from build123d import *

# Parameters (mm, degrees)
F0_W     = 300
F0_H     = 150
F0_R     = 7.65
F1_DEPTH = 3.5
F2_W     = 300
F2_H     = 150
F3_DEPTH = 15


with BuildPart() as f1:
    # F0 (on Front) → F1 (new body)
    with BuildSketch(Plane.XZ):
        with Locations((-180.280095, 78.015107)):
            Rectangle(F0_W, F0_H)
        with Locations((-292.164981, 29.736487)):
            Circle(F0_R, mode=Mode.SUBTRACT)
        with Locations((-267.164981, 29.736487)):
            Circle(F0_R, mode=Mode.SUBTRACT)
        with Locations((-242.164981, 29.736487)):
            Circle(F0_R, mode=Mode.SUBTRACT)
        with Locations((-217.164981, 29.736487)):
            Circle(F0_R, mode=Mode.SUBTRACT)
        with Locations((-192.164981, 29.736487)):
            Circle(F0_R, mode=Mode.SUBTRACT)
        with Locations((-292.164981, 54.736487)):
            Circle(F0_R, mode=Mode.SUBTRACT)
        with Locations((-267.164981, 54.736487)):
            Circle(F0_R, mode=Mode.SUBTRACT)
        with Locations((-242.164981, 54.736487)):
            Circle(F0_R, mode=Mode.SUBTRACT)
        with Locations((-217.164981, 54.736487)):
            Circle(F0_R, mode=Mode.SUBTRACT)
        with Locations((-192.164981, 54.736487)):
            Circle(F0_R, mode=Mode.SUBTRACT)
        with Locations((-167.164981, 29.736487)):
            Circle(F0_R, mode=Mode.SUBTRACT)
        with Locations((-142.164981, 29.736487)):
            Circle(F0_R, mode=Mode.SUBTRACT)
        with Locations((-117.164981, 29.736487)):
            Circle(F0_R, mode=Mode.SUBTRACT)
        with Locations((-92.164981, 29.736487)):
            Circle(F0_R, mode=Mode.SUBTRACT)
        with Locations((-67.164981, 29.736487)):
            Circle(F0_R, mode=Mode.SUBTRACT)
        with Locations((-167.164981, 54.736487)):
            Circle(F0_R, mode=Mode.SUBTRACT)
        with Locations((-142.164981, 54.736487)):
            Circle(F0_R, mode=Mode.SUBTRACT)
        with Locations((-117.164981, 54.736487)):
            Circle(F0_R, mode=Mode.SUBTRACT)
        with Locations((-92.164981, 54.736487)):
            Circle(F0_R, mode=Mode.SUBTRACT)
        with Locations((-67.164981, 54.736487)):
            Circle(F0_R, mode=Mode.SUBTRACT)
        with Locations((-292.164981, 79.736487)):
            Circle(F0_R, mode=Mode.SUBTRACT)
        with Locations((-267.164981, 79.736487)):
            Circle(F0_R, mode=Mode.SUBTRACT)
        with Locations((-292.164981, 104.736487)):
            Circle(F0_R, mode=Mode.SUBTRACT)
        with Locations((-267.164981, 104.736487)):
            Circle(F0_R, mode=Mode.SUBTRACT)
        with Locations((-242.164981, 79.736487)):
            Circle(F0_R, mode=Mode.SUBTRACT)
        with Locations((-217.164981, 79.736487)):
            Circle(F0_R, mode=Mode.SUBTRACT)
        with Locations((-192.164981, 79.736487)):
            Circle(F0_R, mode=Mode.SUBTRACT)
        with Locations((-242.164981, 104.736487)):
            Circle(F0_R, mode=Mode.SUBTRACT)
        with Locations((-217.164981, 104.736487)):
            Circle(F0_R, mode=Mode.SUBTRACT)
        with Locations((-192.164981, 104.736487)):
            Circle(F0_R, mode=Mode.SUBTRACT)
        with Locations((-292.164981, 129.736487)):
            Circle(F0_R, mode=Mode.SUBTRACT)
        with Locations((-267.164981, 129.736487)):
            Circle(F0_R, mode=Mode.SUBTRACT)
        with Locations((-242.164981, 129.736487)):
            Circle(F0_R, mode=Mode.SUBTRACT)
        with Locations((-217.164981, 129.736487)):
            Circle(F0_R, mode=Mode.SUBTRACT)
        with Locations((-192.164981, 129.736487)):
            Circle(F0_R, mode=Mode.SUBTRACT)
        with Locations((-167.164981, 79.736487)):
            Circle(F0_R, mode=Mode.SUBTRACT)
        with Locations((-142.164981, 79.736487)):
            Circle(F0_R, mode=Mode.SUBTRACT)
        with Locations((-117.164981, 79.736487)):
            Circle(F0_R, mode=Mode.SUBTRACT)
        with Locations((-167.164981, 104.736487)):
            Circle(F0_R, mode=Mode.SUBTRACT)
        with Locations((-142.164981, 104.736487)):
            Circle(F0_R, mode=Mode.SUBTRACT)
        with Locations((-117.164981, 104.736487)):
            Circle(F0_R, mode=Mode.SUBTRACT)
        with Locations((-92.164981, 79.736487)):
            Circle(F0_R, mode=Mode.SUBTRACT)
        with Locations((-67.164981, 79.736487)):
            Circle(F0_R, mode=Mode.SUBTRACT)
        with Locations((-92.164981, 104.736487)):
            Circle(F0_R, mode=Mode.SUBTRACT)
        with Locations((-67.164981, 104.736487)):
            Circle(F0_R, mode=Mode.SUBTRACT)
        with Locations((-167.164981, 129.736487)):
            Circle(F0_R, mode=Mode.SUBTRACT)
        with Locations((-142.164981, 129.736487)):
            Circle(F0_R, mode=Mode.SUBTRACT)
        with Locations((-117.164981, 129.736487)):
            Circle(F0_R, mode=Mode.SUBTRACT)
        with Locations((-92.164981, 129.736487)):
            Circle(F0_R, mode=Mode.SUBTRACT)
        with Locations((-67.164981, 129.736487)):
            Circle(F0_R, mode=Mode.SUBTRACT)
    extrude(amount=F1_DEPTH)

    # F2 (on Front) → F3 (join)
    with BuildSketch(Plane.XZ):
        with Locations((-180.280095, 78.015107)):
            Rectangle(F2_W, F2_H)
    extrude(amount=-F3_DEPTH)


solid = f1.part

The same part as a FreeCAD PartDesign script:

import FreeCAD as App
import Part
import Sketcher
from FreeCAD import Vector
Q = App.Units.Quantity


def add_polygon(sketch, points):
    """Adds a closed chain of lines whose ends are joined by coincident constraints."""
    first, n = sketch.GeometryCount, len(points)
    for a, b in zip(points, points[1:] + points[:1]):
        sketch.addGeometry(Part.LineSegment(App.Vector(*a, 0), App.Vector(*b, 0)), False)
    for i in range(n):
        sketch.addConstraint(Sketcher.Constraint("Coincident", first + i, 2, first + (i + 1) % n, 1))

doc = App.newDocument("Part")
body = doc.addObject("PartDesign::Body", "Body")

# Sketch on XZ plane
sketch1 = body.newObject("Sketcher::SketchObject", "Sketch")
sketch1.AttachmentSupport = (doc.getObject("XZ_Plane"), [""])
sketch1.MapMode = "FlatFace"
add_polygon(sketch1, [(-330, 153), (-330, 3), (-30, 3), (-30, 153)])  # lines 0-3
sketch1.addGeometry(Part.Circle(Vector(-292, 30, 0), Vector(0, 0, 1), 8), False)  # 4
sketch1.addGeometry(Part.Circle(Vector(-267, 30, 0), Vector(0, 0, 1), 8), False)  # 5
sketch1.addGeometry(Part.Circle(Vector(-242, 30, 0), Vector(0, 0, 1), 8), False)  # 6
sketch1.addGeometry(Part.Circle(Vector(-217, 30, 0), Vector(0, 0, 1), 8), False)  # 7
sketch1.addGeometry(Part.Circle(Vector(-192, 30, 0), Vector(0, 0, 1), 8), False)  # 8
sketch1.addGeometry(Part.Circle(Vector(-292, 55, 0), Vector(0, 0, 1), 8), False)  # 9
sketch1.addGeometry(Part.Circle(Vector(-267, 55, 0), Vector(0, 0, 1), 8), False)  # 10
sketch1.addGeometry(Part.Circle(Vector(-242, 55, 0), Vector(0, 0, 1), 8), False)  # 11
sketch1.addGeometry(Part.Circle(Vector(-292, 80, 0), Vector(0, 0, 1), 8), False)  # 12
sketch1.addGeometry(Part.Circle(Vector(-267, 80, 0), Vector(0, 0, 1), 8), False)  # 13
sketch1.addGeometry(Part.Circle(Vector(-242, 80, 0), Vector(0, 0, 1), 8), False)  # 14
sketch1.addGeometry(Part.Circle(Vector(-217, 55, 0), Vector(0, 0, 1), 8), False)  # 15
sketch1.addGeometry(Part.Circle(Vector(-192, 55, 0), Vector(0, 0, 1), 8), False)  # 16
sketch1.addGeometry(Part.Circle(Vector(-217, 80, 0), Vector(0, 0, 1), 8), False)  # 17
sketch1.addGeometry(Part.Circle(Vector(-192, 80, 0), Vector(0, 0, 1), 8), False)  # 18
sketch1.addGeometry(Part.Circle(Vector(-167, 30, 0), Vector(0, 0, 1), 8), False)  # 19
sketch1.addGeometry(Part.Circle(Vector(-142, 30, 0), Vector(0, 0, 1), 8), False)  # 20
sketch1.addGeometry(Part.Circle(Vector(-117, 30, 0), Vector(0, 0, 1), 8), False)  # 21
sketch1.addGeometry(Part.Circle(Vector(-92, 30, 0), Vector(0, 0, 1), 8), False)  # 22
sketch1.addGeometry(Part.Circle(Vector(-67, 30, 0), Vector(0, 0, 1), 8), False)  # 23
sketch1.addGeometry(Part.Circle(Vector(-167, 55, 0), Vector(0, 0, 1), 8), False)  # 24
sketch1.addGeometry(Part.Circle(Vector(-142, 55, 0), Vector(0, 0, 1), 8), False)  # 25
sketch1.addGeometry(Part.Circle(Vector(-167, 80, 0), Vector(0, 0, 1), 8), False)  # 26
sketch1.addGeometry(Part.Circle(Vector(-142, 80, 0), Vector(0, 0, 1), 8), False)  # 27
sketch1.addGeometry(Part.Circle(Vector(-117, 55, 0), Vector(0, 0, 1), 8), False)  # 28
sketch1.addGeometry(Part.Circle(Vector(-92, 55, 0), Vector(0, 0, 1), 8), False)  # 29
sketch1.addGeometry(Part.Circle(Vector(-67, 55, 0), Vector(0, 0, 1), 8), False)  # 30
sketch1.addGeometry(Part.Circle(Vector(-117, 80, 0), Vector(0, 0, 1), 8), False)  # 31
sketch1.addGeometry(Part.Circle(Vector(-92, 80, 0), Vector(0, 0, 1), 8), False)  # 32
sketch1.addGeometry(Part.Circle(Vector(-67, 80, 0), Vector(0, 0, 1), 8), False)  # 33
sketch1.addGeometry(Part.Circle(Vector(-292, 105, 0), Vector(0, 0, 1), 8), False)  # 34
sketch1.addGeometry(Part.Circle(Vector(-267, 105, 0), Vector(0, 0, 1), 8), False)  # 35
sketch1.addGeometry(Part.Circle(Vector(-242, 105, 0), Vector(0, 0, 1), 8), False)  # 36
sketch1.addGeometry(Part.Circle(Vector(-217, 105, 0), Vector(0, 0, 1), 8), False)  # 37
sketch1.addGeometry(Part.Circle(Vector(-192, 105, 0), Vector(0, 0, 1), 8), False)  # 38
sketch1.addGeometry(Part.Circle(Vector(-292, 130, 0), Vector(0, 0, 1), 8), False)  # 39
sketch1.addGeometry(Part.Circle(Vector(-267, 130, 0), Vector(0, 0, 1), 8), False)  # 40
sketch1.addGeometry(Part.Circle(Vector(-242, 130, 0), Vector(0, 0, 1), 8), False)  # 41
sketch1.addGeometry(Part.Circle(Vector(-217, 130, 0), Vector(0, 0, 1), 8), False)  # 42
sketch1.addGeometry(Part.Circle(Vector(-192, 130, 0), Vector(0, 0, 1), 8), False)  # 43
sketch1.addGeometry(Part.Circle(Vector(-167, 105, 0), Vector(0, 0, 1), 8), False)  # 44
sketch1.addGeometry(Part.Circle(Vector(-142, 105, 0), Vector(0, 0, 1), 8), False)  # 45
sketch1.addGeometry(Part.Circle(Vector(-117, 105, 0), Vector(0, 0, 1), 8), False)  # 46
sketch1.addGeometry(Part.Circle(Vector(-92, 105, 0), Vector(0, 0, 1), 8), False)  # 47
sketch1.addGeometry(Part.Circle(Vector(-67, 105, 0), Vector(0, 0, 1), 8), False)  # 48
sketch1.addGeometry(Part.Circle(Vector(-167, 130, 0), Vector(0, 0, 1), 8), False)  # 49
sketch1.addGeometry(Part.Circle(Vector(-142, 130, 0), Vector(0, 0, 1), 8), False)  # 50
sketch1.addGeometry(Part.Circle(Vector(-117, 130, 0), Vector(0, 0, 1), 8), False)  # 51
sketch1.addGeometry(Part.Circle(Vector(-92, 130, 0), Vector(0, 0, 1), 8), False)  # 52
sketch1.addGeometry(Part.Circle(Vector(-67, 130, 0), Vector(0, 0, 1), 8), False)  # 53
sketch1.addConstraint(Sketcher.Constraint("Vertical", 0))
sketch1.addConstraint(Sketcher.Constraint("Horizontal", 1))
sketch1.addConstraint(Sketcher.Constraint("Vertical", 2))
sketch1.addConstraint(Sketcher.Constraint("Horizontal", 3))
sketch1.addConstraint(Sketcher.Constraint("Equal", 4, 5))
sketch1.addConstraint(Sketcher.Constraint("Equal", 5, 6))
sketch1.addConstraint(Sketcher.Constraint("Equal", 6, 7))
sketch1.addConstraint(Sketcher.Constraint("Equal", 7, 8))
sketch1.addConstraint(Sketcher.Constraint("Equal", 8, 9))
sketch1.addConstraint(Sketcher.Constraint("Equal", 9, 10))
sketch1.addConstraint(Sketcher.Constraint("Equal", 10, 11))
sketch1.addConstraint(Sketcher.Constraint("Equal", 11, 12))
sketch1.addConstraint(Sketcher.Constraint("Equal", 12, 13))
sketch1.addConstraint(Sketcher.Constraint("Equal", 13, 14))
sketch1.addConstraint(Sketcher.Constraint("Equal", 14, 15))
sketch1.addConstraint(Sketcher.Constraint("Equal", 15, 16))
sketch1.addConstraint(Sketcher.Constraint("Equal", 16, 17))
sketch1.addConstraint(Sketcher.Constraint("Equal", 17, 18))
sketch1.addConstraint(Sketcher.Constraint("Equal", 18, 19))
sketch1.addConstraint(Sketcher.Constraint("Equal", 19, 20))
sketch1.addConstraint(Sketcher.Constraint("Equal", 20, 21))
sketch1.addConstraint(Sketcher.Constraint("Equal", 21, 22))
sketch1.addConstraint(Sketcher.Constraint("Equal", 22, 23))
sketch1.addConstraint(Sketcher.Constraint("Equal", 23, 24))
sketch1.addConstraint(Sketcher.Constraint("Equal", 24, 25))
sketch1.addConstraint(Sketcher.Constraint("Equal", 25, 26))
sketch1.addConstraint(Sketcher.Constraint("Equal", 26, 27))
sketch1.addConstraint(Sketcher.Constraint("Equal", 27, 28))
sketch1.addConstraint(Sketcher.Constraint("Equal", 28, 29))
sketch1.addConstraint(Sketcher.Constraint("Equal", 29, 30))
sketch1.addConstraint(Sketcher.Constraint("Equal", 30, 31))
sketch1.addConstraint(Sketcher.Constraint("Equal", 31, 32))
sketch1.addConstraint(Sketcher.Constraint("Equal", 32, 33))
sketch1.addConstraint(Sketcher.Constraint("Equal", 33, 34))
sketch1.addConstraint(Sketcher.Constraint("Equal", 34, 35))
sketch1.addConstraint(Sketcher.Constraint("Equal", 35, 36))
sketch1.addConstraint(Sketcher.Constraint("Equal", 36, 37))
sketch1.addConstraint(Sketcher.Constraint("Equal", 37, 38))
sketch1.addConstraint(Sketcher.Constraint("Equal", 38, 39))
sketch1.addConstraint(Sketcher.Constraint("Equal", 39, 40))
sketch1.addConstraint(Sketcher.Constraint("Equal", 40, 41))
sketch1.addConstraint(Sketcher.Constraint("Equal", 41, 42))
sketch1.addConstraint(Sketcher.Constraint("Equal", 42, 43))
sketch1.addConstraint(Sketcher.Constraint("Equal", 43, 44))
sketch1.addConstraint(Sketcher.Constraint("Equal", 44, 45))
sketch1.addConstraint(Sketcher.Constraint("Equal", 45, 46))
sketch1.addConstraint(Sketcher.Constraint("Equal", 46, 47))
sketch1.addConstraint(Sketcher.Constraint("Equal", 47, 48))
sketch1.addConstraint(Sketcher.Constraint("Equal", 48, 49))
sketch1.addConstraint(Sketcher.Constraint("Equal", 49, 50))
sketch1.addConstraint(Sketcher.Constraint("Equal", 50, 51))
sketch1.addConstraint(Sketcher.Constraint("Equal", 51, 52))
sketch1.addConstraint(Sketcher.Constraint("Equal", 52, 53))
sketch1.addConstraint(Sketcher.Constraint("Horizontal", 4, 3, 5, 3))
sketch1.addConstraint(Sketcher.Constraint("Horizontal", 5, 3, 6, 3))
sketch1.addConstraint(Sketcher.Constraint("Horizontal", 6, 3, 7, 3))
sketch1.addConstraint(Sketcher.Constraint("Horizontal", 7, 3, 8, 3))
sketch1.addConstraint(Sketcher.Constraint("Horizontal", 9, 3, 10, 3))
sketch1.addConstraint(Sketcher.Constraint("Horizontal", 10, 3, 11, 3))
sketch1.addConstraint(Sketcher.Constraint("Horizontal", 12, 3, 13, 3))
sketch1.addConstraint(Sketcher.Constraint("Horizontal", 13, 3, 14, 3))
sketch1.addConstraint(Sketcher.Constraint("Horizontal", 11, 3, 15, 3))
sketch1.addConstraint(Sketcher.Constraint("Horizontal", 15, 3, 16, 3))
sketch1.addConstraint(Sketcher.Constraint("Horizontal", 14, 3, 17, 3))
sketch1.addConstraint(Sketcher.Constraint("Horizontal", 17, 3, 18, 3))
sketch1.addConstraint(Sketcher.Constraint("Horizontal", 8, 3, 19, 3))
sketch1.addConstraint(Sketcher.Constraint("Horizontal", 19, 3, 20, 3))
sketch1.addConstraint(Sketcher.Constraint("Horizontal", 20, 3, 21, 3))
sketch1.addConstraint(Sketcher.Constraint("Horizontal", 21, 3, 22, 3))
sketch1.addConstraint(Sketcher.Constraint("Horizontal", 22, 3, 23, 3))
sketch1.addConstraint(Sketcher.Constraint("Horizontal", 16, 3, 24, 3))
sketch1.addConstraint(Sketcher.Constraint("Horizontal", 24, 3, 25, 3))
sketch1.addConstraint(Sketcher.Constraint("Horizontal", 18, 3, 26, 3))
sketch1.addConstraint(Sketcher.Constraint("Horizontal", 26, 3, 27, 3))
sketch1.addConstraint(Sketcher.Constraint("Horizontal", 25, 3, 28, 3))
sketch1.addConstraint(Sketcher.Constraint("Horizontal", 28, 3, 29, 3))
sketch1.addConstraint(Sketcher.Constraint("Horizontal", 29, 3, 30, 3))
sketch1.addConstraint(Sketcher.Constraint("Horizontal", 27, 3, 31, 3))
sketch1.addConstraint(Sketcher.Constraint("Horizontal", 31, 3, 32, 3))
sketch1.addConstraint(Sketcher.Constraint("Horizontal", 32, 3, 33, 3))
sketch1.addConstraint(Sketcher.Constraint("Horizontal", 34, 3, 35, 3))
sketch1.addConstraint(Sketcher.Constraint("Horizontal", 35, 3, 36, 3))
sketch1.addConstraint(Sketcher.Constraint("Horizontal", 36, 3, 37, 3))
sketch1.addConstraint(Sketcher.Constraint("Horizontal", 37, 3, 38, 3))
sketch1.addConstraint(Sketcher.Constraint("Horizontal", 39, 3, 40, 3))
sketch1.addConstraint(Sketcher.Constraint("Horizontal", 40, 3, 41, 3))
sketch1.addConstraint(Sketcher.Constraint("Horizontal", 41, 3, 42, 3))
sketch1.addConstraint(Sketcher.Constraint("Horizontal", 42, 3, 43, 3))
sketch1.addConstraint(Sketcher.Constraint("Horizontal", 38, 3, 44, 3))
sketch1.addConstraint(Sketcher.Constraint("Horizontal", 44, 3, 45, 3))
sketch1.addConstraint(Sketcher.Constraint("Horizontal", 45, 3, 46, 3))
sketch1.addConstraint(Sketcher.Constraint("Horizontal", 46, 3, 47, 3))
sketch1.addConstraint(Sketcher.Constraint("Horizontal", 47, 3, 48, 3))
sketch1.addConstraint(Sketcher.Constraint("Horizontal", 43, 3, 49, 3))
sketch1.addConstraint(Sketcher.Constraint("Horizontal", 49, 3, 50, 3))
sketch1.addConstraint(Sketcher.Constraint("Horizontal", 50, 3, 51, 3))
sketch1.addConstraint(Sketcher.Constraint("Horizontal", 51, 3, 52, 3))
sketch1.addConstraint(Sketcher.Constraint("Horizontal", 52, 3, 53, 3))
sketch1.addConstraint(Sketcher.Constraint("Vertical", 4, 3, 9, 3))
sketch1.addConstraint(Sketcher.Constraint("Vertical", 5, 3, 10, 3))
sketch1.addConstraint(Sketcher.Constraint("Vertical", 6, 3, 11, 3))
sketch1.addConstraint(Sketcher.Constraint("Vertical", 9, 3, 12, 3))
sketch1.addConstraint(Sketcher.Constraint("Vertical", 10, 3, 13, 3))
sketch1.addConstraint(Sketcher.Constraint("Vertical", 11, 3, 14, 3))
sketch1.addConstraint(Sketcher.Constraint("Vertical", 7, 3, 15, 3))
sketch1.addConstraint(Sketcher.Constraint("Vertical", 8, 3, 16, 3))
sketch1.addConstraint(Sketcher.Constraint("Vertical", 15, 3, 17, 3))
sketch1.addConstraint(Sketcher.Constraint("Vertical", 16, 3, 18, 3))
sketch1.addConstraint(Sketcher.Constraint("Vertical", 19, 3, 24, 3))
sketch1.addConstraint(Sketcher.Constraint("Vertical", 20, 3, 25, 3))
sketch1.addConstraint(Sketcher.Constraint("Vertical", 24, 3, 26, 3))
sketch1.addConstraint(Sketcher.Constraint("Vertical", 25, 3, 27, 3))
sketch1.addConstraint(Sketcher.Constraint("Vertical", 21, 3, 28, 3))
sketch1.addConstraint(Sketcher.Constraint("Vertical", 22, 3, 29, 3))
sketch1.addConstraint(Sketcher.Constraint("Vertical", 23, 3, 30, 3))
sketch1.addConstraint(Sketcher.Constraint("Vertical", 28, 3, 31, 3))
sketch1.addConstraint(Sketcher.Constraint("Vertical", 29, 3, 32, 3))
sketch1.addConstraint(Sketcher.Constraint("Vertical", 30, 3, 33, 3))
sketch1.addConstraint(Sketcher.Constraint("Vertical", 12, 3, 34, 3))
sketch1.addConstraint(Sketcher.Constraint("Vertical", 13, 3, 35, 3))
sketch1.addConstraint(Sketcher.Constraint("Vertical", 14, 3, 36, 3))
sketch1.addConstraint(Sketcher.Constraint("Vertical", 17, 3, 37, 3))
sketch1.addConstraint(Sketcher.Constraint("Vertical", 18, 3, 38, 3))
sketch1.addConstraint(Sketcher.Constraint("Vertical", 34, 3, 39, 3))
sketch1.addConstraint(Sketcher.Constraint("Vertical", 35, 3, 40, 3))
sketch1.addConstraint(Sketcher.Constraint("Vertical", 36, 3, 41, 3))
sketch1.addConstraint(Sketcher.Constraint("Vertical", 37, 3, 42, 3))
sketch1.addConstraint(Sketcher.Constraint("Vertical", 38, 3, 43, 3))
sketch1.addConstraint(Sketcher.Constraint("Vertical", 26, 3, 44, 3))
sketch1.addConstraint(Sketcher.Constraint("Vertical", 27, 3, 45, 3))
sketch1.addConstraint(Sketcher.Constraint("Vertical", 31, 3, 46, 3))
sketch1.addConstraint(Sketcher.Constraint("Vertical", 32, 3, 47, 3))
sketch1.addConstraint(Sketcher.Constraint("Vertical", 33, 3, 48, 3))
sketch1.addConstraint(Sketcher.Constraint("Vertical", 44, 3, 49, 3))
sketch1.addConstraint(Sketcher.Constraint("Vertical", 45, 3, 50, 3))
sketch1.addConstraint(Sketcher.Constraint("Vertical", 46, 3, 51, 3))
sketch1.addConstraint(Sketcher.Constraint("Vertical", 47, 3, 52, 3))
sketch1.addConstraint(Sketcher.Constraint("Vertical", 48, 3, 53, 3))
sketch1.addConstraint(Sketcher.Constraint("Diameter", 4, Q("15.3 mm")))
sketch1.addConstraint(Sketcher.Constraint("DistanceX", 1, 1, 1, 2, Q("300 mm")))
sketch1.addConstraint(Sketcher.Constraint("DistanceY", 0, 2, 0, 1, Q("150 mm")))
sketch1.addConstraint(Sketcher.Constraint("DistanceX", 4, 3, 5, 3, Q("25 mm")))
sketch1.addConstraint(Sketcher.Constraint("DistanceX", 5, 3, 6, 3, Q("25 mm")))
sketch1.addConstraint(Sketcher.Constraint("DistanceX", 6, 3, 7, 3, Q("25 mm")))
sketch1.addConstraint(Sketcher.Constraint("DistanceX", 7, 3, 8, 3, Q("25 mm")))
sketch1.addConstraint(Sketcher.Constraint("DistanceY", 4, 3, 9, 3, Q("25 mm")))
sketch1.addConstraint(Sketcher.Constraint("DistanceY", 9, 3, 12, 3, Q("25 mm")))
sketch1.addConstraint(Sketcher.Constraint("DistanceX", 8, 3, 19, 3, Q("25 mm")))
sketch1.addConstraint(Sketcher.Constraint("DistanceX", 19, 3, 20, 3, Q("25 mm")))
sketch1.addConstraint(Sketcher.Constraint("DistanceX", 20, 3, 21, 3, Q("25 mm")))
sketch1.addConstraint(Sketcher.Constraint("DistanceX", 21, 3, 22, 3, Q("25 mm")))
sketch1.addConstraint(Sketcher.Constraint("DistanceX", 22, 3, 23, 3, Q("25 mm")))
sketch1.addConstraint(Sketcher.Constraint("DistanceY", 12, 3, 34, 3, Q("25 mm")))
sketch1.addConstraint(Sketcher.Constraint("DistanceY", 34, 3, 39, 3, Q("25 mm")))
sketch1.addConstraint(Sketcher.Constraint("DistanceX", 4, 3, -1, 1, Q("292.164981 mm")))
sketch1.addConstraint(Sketcher.Constraint("DistanceY", 0, 2, 4, 3, Q("26.72138 mm")))
sketch1.addConstraint(Sketcher.Constraint("DistanceY", -1, 1, 4, 3, Q("29.736487 mm")))
sketch1.addConstraint(Sketcher.Constraint("DistanceX", 0, 2, -1, 1, Q("330.280095 mm")))
pad1 = body.newObject("PartDesign::Pad", "Pad")
pad1.Profile = sketch1
pad1.Length = 3.5

# Sketch on XZ plane
sketch2 = body.newObject("Sketcher::SketchObject", "Sketch001")
sketch2.AttachmentSupport = (doc.getObject("XZ_Plane"), [""])
sketch2.MapMode = "FlatFace"
add_polygon(sketch2, [(-330, 153), (-330, 3), (-30, 3), (-30, 153)])  # lines 0-3
sketch2.addConstraint(Sketcher.Constraint("Vertical", 0))
sketch2.addConstraint(Sketcher.Constraint("Horizontal", 1))
sketch2.addConstraint(Sketcher.Constraint("Vertical", 2))
sketch2.addConstraint(Sketcher.Constraint("Horizontal", 3))
sketch2.addConstraint(Sketcher.Constraint("DistanceX", 1, 1, 1, 2, Q("300 mm")))
sketch2.addConstraint(Sketcher.Constraint("DistanceY", 0, 2, 0, 1, Q("150 mm")))
sketch2.addConstraint(Sketcher.Constraint("DistanceX", 0, 2, -1, 1, Q("330.280095 mm")))
sketch2.addConstraint(Sketcher.Constraint("DistanceY", -1, 1, 0, 2, Q("3.015107 mm")))
pad2 = body.newObject("PartDesign::Pad", "Pad001")
pad2.Profile = sketch2
pad2.Length = 15
pad2.Reversed = True

doc.recompute()
